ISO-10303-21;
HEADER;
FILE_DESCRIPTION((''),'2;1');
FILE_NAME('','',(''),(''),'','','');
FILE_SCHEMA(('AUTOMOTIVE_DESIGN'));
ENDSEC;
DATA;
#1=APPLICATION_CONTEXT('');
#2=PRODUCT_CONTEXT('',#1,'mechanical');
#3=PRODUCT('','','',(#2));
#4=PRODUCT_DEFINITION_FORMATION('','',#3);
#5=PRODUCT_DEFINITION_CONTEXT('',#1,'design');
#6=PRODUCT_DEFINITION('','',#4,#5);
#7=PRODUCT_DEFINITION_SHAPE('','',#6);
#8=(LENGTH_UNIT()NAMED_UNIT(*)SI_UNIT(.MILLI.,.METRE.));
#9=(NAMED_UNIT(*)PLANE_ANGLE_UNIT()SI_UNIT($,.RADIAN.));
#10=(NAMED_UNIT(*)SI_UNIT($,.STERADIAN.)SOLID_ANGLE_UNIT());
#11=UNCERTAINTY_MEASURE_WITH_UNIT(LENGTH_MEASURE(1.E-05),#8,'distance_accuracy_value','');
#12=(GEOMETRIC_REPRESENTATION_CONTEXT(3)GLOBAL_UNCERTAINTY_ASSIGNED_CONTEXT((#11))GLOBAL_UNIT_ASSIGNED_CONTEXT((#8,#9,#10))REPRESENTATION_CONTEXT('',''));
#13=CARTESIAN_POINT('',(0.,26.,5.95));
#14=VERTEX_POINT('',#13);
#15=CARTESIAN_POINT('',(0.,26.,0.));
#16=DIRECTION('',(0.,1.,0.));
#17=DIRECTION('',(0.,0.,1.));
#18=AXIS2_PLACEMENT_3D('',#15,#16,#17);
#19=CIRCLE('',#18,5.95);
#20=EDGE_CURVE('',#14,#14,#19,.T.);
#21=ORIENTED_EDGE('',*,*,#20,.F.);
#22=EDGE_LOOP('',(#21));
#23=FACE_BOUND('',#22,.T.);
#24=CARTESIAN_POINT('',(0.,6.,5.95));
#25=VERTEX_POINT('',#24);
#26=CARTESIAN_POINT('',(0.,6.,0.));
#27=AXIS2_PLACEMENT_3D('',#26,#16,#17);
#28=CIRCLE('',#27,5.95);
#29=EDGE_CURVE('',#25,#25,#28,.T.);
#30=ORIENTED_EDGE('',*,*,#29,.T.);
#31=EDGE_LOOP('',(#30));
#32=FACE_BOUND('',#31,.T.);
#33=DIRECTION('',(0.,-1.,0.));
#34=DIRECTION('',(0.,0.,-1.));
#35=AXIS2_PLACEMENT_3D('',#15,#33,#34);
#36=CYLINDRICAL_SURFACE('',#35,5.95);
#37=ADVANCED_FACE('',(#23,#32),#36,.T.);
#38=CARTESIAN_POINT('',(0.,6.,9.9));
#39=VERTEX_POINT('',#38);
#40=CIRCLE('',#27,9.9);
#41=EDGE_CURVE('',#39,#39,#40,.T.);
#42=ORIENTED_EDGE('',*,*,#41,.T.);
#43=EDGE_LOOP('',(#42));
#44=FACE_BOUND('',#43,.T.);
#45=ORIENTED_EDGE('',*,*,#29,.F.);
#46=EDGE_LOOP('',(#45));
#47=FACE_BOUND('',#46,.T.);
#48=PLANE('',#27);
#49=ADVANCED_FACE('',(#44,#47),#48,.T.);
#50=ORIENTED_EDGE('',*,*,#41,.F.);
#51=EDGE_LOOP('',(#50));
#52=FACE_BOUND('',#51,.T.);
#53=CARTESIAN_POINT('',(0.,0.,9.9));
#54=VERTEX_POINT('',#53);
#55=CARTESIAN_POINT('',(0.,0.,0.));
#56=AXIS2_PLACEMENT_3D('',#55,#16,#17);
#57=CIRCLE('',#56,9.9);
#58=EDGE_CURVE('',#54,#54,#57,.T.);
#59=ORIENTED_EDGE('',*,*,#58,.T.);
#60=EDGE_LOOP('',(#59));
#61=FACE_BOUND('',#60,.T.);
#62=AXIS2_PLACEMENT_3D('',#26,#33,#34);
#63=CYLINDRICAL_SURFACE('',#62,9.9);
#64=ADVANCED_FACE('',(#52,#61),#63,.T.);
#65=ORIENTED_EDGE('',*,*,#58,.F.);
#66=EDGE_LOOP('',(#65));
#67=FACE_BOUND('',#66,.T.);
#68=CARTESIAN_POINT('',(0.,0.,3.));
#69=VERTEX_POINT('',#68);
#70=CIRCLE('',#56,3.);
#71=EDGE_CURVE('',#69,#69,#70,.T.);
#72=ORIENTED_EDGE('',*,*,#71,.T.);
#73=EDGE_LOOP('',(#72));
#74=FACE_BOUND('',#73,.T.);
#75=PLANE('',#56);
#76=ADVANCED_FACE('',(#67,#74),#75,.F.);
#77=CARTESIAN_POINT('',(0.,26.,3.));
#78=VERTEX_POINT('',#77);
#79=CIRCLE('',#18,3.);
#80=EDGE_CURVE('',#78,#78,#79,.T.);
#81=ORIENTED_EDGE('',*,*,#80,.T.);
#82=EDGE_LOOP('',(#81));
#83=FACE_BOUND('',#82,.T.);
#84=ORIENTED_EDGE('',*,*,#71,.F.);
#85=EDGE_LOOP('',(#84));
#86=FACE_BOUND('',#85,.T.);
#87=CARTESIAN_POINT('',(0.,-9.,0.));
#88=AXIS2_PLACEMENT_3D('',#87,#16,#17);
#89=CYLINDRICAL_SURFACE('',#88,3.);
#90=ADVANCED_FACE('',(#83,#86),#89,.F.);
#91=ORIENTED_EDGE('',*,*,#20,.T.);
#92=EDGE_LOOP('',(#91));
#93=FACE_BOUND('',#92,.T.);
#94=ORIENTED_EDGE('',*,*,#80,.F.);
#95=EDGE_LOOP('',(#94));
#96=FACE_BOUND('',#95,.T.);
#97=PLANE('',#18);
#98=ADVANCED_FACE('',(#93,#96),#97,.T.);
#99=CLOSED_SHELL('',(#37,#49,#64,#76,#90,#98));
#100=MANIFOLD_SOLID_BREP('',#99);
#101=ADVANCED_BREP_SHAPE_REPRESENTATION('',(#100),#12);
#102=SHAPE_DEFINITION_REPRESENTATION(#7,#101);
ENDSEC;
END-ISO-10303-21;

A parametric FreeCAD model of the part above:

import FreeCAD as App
import Part
import Sketcher

V = App.Vector

doc = App.newDocument("Part")
params = doc.addObject("Spreadsheet::Sheet", "Params")
for row, (alias, value) in enumerate([
    ("sketch1_diameter", "19.8 mm"),
    ("pad1_length", "6 mm"),
    ("sketch2_diameter", "11.9 mm"),
    ("pad2_length", "20 mm"),
    ("sketch3_diameter", "6 mm"),
    ("pocket1_length", "35 mm"),
], start=1):
    params.set(f"A{row}", alias)
    params.set(f"B{row}", "=" + value)
    params.setAlias(f"B{row}", alias)

body = doc.addObject("PartDesign::Body", "Body")

# Sketch on XZ plane
sketch1 = body.newObject("Sketcher::SketchObject", "Sketch")
sketch1.AttachmentSupport = (doc.getObject("XZ_Plane"), [""])
sketch1.MapMode = "FlatFace"
sketch1.addGeometry(Part.Circle(V(0, 0, 0), V(0, 0, 1), 10), False)
sketch1.addConstraint(Sketcher.Constraint("Coincident", 0, 3, -1, 1))
sketch1.addConstraint(Sketcher.Constraint("Diameter", 0, 19.8))
sketch1.setExpression("Constraints[1]", "Params.sketch1_diameter")
pad1 = body.newObject("PartDesign::Pad", "Pad")
pad1.Profile = sketch1
pad1.setExpression("Length", "Params.pad1_length")
pad1.Reversed = True

# Sketch on XZ plane
sketch2 = body.newObject("Sketcher::SketchObject", "Sketch001")
sketch2.AttachmentSupport = (doc.getObject("XZ_Plane"), [""])
sketch2.MapMode = "FlatFace"
sketch2.AttachmentOffset = App.Placement(V(0, 0, -6), App.Rotation())
sketch2.addGeometry(Part.Circle(V(0, 0, 0), V(0, 0, 1), 6), False)
sketch2.addConstraint(Sketcher.Constraint("Coincident", 0, 3, -1, 1))
sketch2.addConstraint(Sketcher.Constraint("Diameter", 0, 11.9))
sketch2.setExpression("Constraints[1]", "Params.sketch2_diameter")
pad2 = body.newObject("PartDesign::Pad", "Pad001")
pad2.Profile = sketch2
pad2.setExpression("Length", "Params.pad2_length")
pad2.Reversed = True

# Sketch on XZ plane
sketch3 = body.newObject("Sketcher::SketchObject", "Sketch002")
sketch3.AttachmentSupport = (doc.getObject("XZ_Plane"), [""])
sketch3.MapMode = "FlatFace"
sketch3.AttachmentOffset = App.Placement(V(0, 0, -26), App.Rotation())
sketch3.addGeometry(Part.Circle(V(0, 0, 0), V(0, 0, 1), 3), False)
sketch3.addConstraint(Sketcher.Constraint("Coincident", 0, 3, -1, 1))
sketch3.addConstraint(Sketcher.Constraint("Diameter", 0, 6.0))
sketch3.setExpression("Constraints[1]", "Params.sketch3_diameter")
pocket1 = body.newObject("PartDesign::Pocket", "Pocket")
pocket1.Profile = sketch3
pocket1.setExpression("Length", "Params.pocket1_length")
pocket1.Reversed = True

doc.recompute()
